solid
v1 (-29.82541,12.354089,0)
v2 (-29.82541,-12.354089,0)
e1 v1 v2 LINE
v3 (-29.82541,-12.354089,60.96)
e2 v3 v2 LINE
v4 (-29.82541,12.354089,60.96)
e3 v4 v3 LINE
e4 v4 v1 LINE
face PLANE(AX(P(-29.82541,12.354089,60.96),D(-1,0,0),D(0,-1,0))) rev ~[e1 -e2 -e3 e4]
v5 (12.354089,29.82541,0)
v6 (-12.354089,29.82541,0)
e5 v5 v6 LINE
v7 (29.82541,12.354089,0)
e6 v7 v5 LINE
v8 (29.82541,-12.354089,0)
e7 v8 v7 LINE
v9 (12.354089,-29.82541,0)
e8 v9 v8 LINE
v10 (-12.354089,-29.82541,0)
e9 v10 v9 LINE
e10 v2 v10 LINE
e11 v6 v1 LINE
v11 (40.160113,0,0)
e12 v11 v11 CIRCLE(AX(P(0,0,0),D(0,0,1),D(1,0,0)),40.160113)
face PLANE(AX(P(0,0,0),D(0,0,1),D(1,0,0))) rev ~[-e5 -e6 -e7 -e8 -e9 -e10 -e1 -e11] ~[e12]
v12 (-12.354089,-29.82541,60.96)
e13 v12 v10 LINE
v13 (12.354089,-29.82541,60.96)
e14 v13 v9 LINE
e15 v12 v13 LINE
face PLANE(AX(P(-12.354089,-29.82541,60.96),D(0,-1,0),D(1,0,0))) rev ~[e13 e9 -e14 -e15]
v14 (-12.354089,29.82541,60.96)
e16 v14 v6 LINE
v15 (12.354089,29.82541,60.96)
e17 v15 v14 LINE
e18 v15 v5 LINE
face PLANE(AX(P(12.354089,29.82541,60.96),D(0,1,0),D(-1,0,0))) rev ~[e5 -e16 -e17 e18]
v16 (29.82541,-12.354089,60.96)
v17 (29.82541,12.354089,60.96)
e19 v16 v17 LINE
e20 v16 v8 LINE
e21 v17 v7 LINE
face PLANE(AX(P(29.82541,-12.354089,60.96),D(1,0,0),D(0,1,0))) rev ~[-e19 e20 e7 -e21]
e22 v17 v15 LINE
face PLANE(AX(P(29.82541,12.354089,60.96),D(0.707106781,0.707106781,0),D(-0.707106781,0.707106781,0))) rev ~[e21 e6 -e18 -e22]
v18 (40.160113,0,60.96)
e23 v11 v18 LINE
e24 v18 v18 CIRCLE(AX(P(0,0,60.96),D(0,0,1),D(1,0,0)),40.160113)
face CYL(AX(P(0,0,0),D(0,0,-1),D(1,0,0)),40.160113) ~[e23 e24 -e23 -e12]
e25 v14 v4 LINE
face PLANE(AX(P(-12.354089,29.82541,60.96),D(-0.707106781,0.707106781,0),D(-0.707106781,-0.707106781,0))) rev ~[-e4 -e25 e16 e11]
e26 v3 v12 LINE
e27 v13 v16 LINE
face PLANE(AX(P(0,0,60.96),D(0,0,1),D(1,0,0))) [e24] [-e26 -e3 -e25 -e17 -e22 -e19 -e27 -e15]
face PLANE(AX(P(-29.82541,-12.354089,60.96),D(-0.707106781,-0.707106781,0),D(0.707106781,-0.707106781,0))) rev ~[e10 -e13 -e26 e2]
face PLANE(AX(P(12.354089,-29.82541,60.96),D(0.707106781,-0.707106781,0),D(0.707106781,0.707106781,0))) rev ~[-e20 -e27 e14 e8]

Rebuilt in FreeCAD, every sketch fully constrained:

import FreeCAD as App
import Part
import Sketcher

V = App.Vector
Q = App.Units.Quantity


def add_polygon(sketch, points):
    """Adds a closed chain of lines whose ends are joined by coincident constraints."""
    first, n = sketch.GeometryCount, len(points)
    for a, b in zip(points, points[1:] + points[:1]):
        sketch.addGeometry(Part.LineSegment(App.Vector(*a, 0), App.Vector(*b, 0)), False)
    for i in range(n):
        sketch.addConstraint(Sketcher.Constraint("Coincident", first + i, 2, first + (i + 1) % n, 1))

doc = App.newDocument("Part")
params = doc.addObject("Spreadsheet::Sheet", "Params")
for row, (alias, value) in enumerate([
    ("pad1_length", "2.4 in"),
    ("pocket1_length", "7.24 in"),
], start=1):
    params.set(f"A{row}", alias)
    params.set(f"B{row}", "=" + value)
    params.setAlias(f"B{row}", alias)

body = doc.addObject("PartDesign::Body", "Body")

# Sketch on XY plane
sketch1 = body.newObject("Sketcher::SketchObject", "Sketch")
sketch1.AttachmentSupport = (doc.getObject("XY_Plane"), [""])
sketch1.MapMode = "FlatFace"
sketch1.addGeometry(Part.Circle(V(0, 0, 0), V(0, 0, 1), 40), False)
sketch1.addConstraint([
    Sketcher.Constraint("Coincident", 0, 3, -1, 1),
    Sketcher.Constraint("Diameter", 0, Q("80.320226 mm")),
])
pad1 = body.newObject("PartDesign::Pad", "Pad")
pad1.Profile = sketch1
pad1.setExpression("Length", "Params.pad1_length")

# Sketch on XY plane
sketch2 = body.newObject("Sketcher::SketchObject", "Sketch001")
sketch2.AttachmentSupport = (doc.getObject("XY_Plane"), [""])
sketch2.MapMode = "FlatFace"
sketch2.AttachmentOffset = App.Placement(V(0, 0, 2.4 * 25.4), App.Rotation())
add_polygon(sketch2, [(-12, -30), (12, -30), (30, -12), (30, 12), (12, 30), (-12, 30), (-30, 12), (-30, -12)])  # lines 0-7
sketch2.addConstraint([
    Sketcher.Constraint("Horizontal", 0),
    Sketcher.Constraint("Vertical", 2),
    Sketcher.Constraint("Horizontal", 4),
    Sketcher.Constraint("Vertical", 6),
    Sketcher.Constraint("Symmetric", 0, 2, 4, 2, -1, 1),
    Sketcher.Constraint("Symmetric", 1, 2, 5, 2, -1, 1),
    Sketcher.Constraint("Perpendicular", 1, 3),
    Sketcher.Constraint("Perpendicular", 5, 7),
    Sketcher.Constraint("Horizontal", 2, 2, 5, 2),
    Sketcher.Constraint("Horizontal", 1, 2, 6, 2),
    Sketcher.Constraint("Vertical", 0, 2, 3, 2),
    Sketcher.Constraint("Equal", 4, 2),
    Sketcher.Constraint("DistanceX", 0, 1, 0, 2, Q("24.708178 mm")),
    Sketcher.Constraint("DistanceY", 0, 2, 2, 2, Q("42.179499 mm")),
])
pocket1 = body.newObject("PartDesign::Pocket", "Pocket")
pocket1.Profile = sketch2
pocket1.setExpression("Length", "Params.pocket1_length")

doc.recompute()
